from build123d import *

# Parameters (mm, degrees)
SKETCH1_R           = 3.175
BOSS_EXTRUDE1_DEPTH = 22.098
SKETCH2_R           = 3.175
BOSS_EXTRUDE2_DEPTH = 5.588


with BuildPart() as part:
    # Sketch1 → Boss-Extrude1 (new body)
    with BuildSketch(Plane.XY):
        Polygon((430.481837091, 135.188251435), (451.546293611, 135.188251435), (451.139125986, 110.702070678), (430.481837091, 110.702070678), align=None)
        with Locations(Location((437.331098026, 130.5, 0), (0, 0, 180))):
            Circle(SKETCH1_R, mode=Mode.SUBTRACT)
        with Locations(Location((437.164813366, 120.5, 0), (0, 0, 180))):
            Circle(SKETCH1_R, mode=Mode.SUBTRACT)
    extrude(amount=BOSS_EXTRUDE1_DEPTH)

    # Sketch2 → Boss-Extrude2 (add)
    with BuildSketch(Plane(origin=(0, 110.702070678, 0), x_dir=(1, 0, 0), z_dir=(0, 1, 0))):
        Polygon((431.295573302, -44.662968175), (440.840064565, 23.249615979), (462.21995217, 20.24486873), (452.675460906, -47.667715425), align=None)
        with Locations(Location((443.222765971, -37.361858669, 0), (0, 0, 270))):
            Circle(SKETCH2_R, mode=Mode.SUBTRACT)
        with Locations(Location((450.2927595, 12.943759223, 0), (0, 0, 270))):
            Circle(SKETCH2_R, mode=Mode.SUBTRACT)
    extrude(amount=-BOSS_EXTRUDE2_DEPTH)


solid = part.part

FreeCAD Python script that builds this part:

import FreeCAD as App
import Part
import Sketcher

V = App.Vector
Q = App.Units.Quantity

doc = App.newDocument("Part")
body = doc.addObject("PartDesign::Body", "Body")

# Sketch on XY plane
sketch1 = body.newObject("Sketcher::SketchObject", "Sketch")
sketch1.AttachmentSupport = (doc.getObject("XY_Plane"), [""])
sketch1.MapMode = "FlatFace"
sketch1.addGeometry(Part.LineSegment(V(451.5, 135.2, 0), V(430.5, 135.2, 0)), False)
sketch1.addGeometry(Part.LineSegment(V(430.5, 135.2, 0), V(430.5, 110.7, 0)), False)
sketch1.addGeometry(Part.LineSegment(V(430.5, 110.7, 0), V(451.1, 110.7, 0)), False)
sketch1.addGeometry(Part.LineSegment(V(451.1, 110.7, 0), V(451.5, 135.2, 0)), False)
sketch1.addGeometry(Part.Circle(V(437.2, 120.5, 0), V(0, 0, 1), 3.2), False)
sketch1.addGeometry(Part.Circle(V(437.3, 130.5, 0), V(0, 0, 1), 3.2), False)
sketch1.addConstraint(Sketcher.Constraint("Coincident", 0, 2, 1, 1))
sketch1.addConstraint(Sketcher.Constraint("Coincident", 1, 2, 2, 1))
sketch1.addConstraint(Sketcher.Constraint("Coincident", 2, 2, 3, 1))
sketch1.addConstraint(Sketcher.Constraint("Coincident", 3, 2, 0, 1))
sketch1.addConstraint(Sketcher.Constraint("Horizontal", 0))
sketch1.addConstraint(Sketcher.Constraint("Vertical", 1))
sketch1.addConstraint(Sketcher.Constraint("Horizontal", 2))
sketch1.addConstraint(Sketcher.Constraint("Equal", 4, 5))
sketch1.addConstraint(Sketcher.Constraint("Diameter", 4, Q("0.25 in")))
sketch1.addConstraint(Sketcher.Constraint("DistanceX", 4, 3, 3, 2, Q("0.5662 in")))
sketch1.addConstraint(Sketcher.Constraint("DistanceX", 2, 1, 2, 2, Q("20.657289 mm")))
sketch1.addConstraint(Sketcher.Constraint("DistanceY", 1, 2, 1, 1, Q("24.486181 mm")))
sketch1.addConstraint(Sketcher.Constraint("DistanceY", -1, 1, 4, 3, Q("120.5 mm")))
sketch1.addConstraint(Sketcher.Constraint("DistanceX", -1, 1, 5, 3, Q("437.331098 mm")))
sketch1.addConstraint(Sketcher.Constraint("DistanceY", -1, 1, 5, 3, Q("130.5 mm")))
sketch1.addConstraint(Sketcher.Constraint("DistanceX", 0, 2, 0, 1, Q("21.064457 mm")))
sketch1.addConstraint(Sketcher.Constraint("DistanceY", -1, 1, 0, 2, Q("135.188251 mm")))
sketch1.addConstraint(Sketcher.Constraint("DistanceX", 0, 2, 5, 3, Q("6.849261 mm")))
pad1 = body.newObject("PartDesign::Pad", "Pad")
pad1.Profile = sketch1
pad1.Length = Q("0.87 in")

# Sketch on XZ plane
sketch2 = body.newObject("Sketcher::SketchObject", "Sketch001")
sketch2.AttachmentSupport = (doc.getObject("XZ_Plane"), [""])
sketch2.MapMode = "FlatFace"
sketch2.AttachmentOffset = App.Placement(V(0, 0, -110.702071), App.Rotation())
sketch2.addGeometry(Part.LineSegment(V(440.8, -23.2, 0), V(431.3, 44.7, 0)), False)
sketch2.addGeometry(Part.LineSegment(V(431.3, 44.7, 0), V(452.7, 47.7, 0)), False)
sketch2.addGeometry(Part.LineSegment(V(452.7, 47.7, 0), V(462.2, -20.2, 0)), False)
sketch2.addGeometry(Part.LineSegment(V(462.2, -20.2, 0), V(440.8, -23.2, 0)), False)
sketch2.addGeometry(Part.Circle(V(443.2, 37.4, 0), V(0, 0, 1), 3.2), False)
sketch2.addGeometry(Part.Circle(V(450.3, -12.9, 0), V(0, 0, 1), 3.2), False)
sketch2.addConstraint(Sketcher.Constraint("Coincident", 0, 2, 1, 1))
sketch2.addConstraint(Sketcher.Constraint("Coincident", 1, 2, 2, 1))
sketch2.addConstraint(Sketcher.Constraint("Coincident", 2, 2, 3, 1))
sketch2.addConstraint(Sketcher.Constraint("Coincident", 3, 2, 0, 1))
sketch2.addConstraint(Sketcher.Constraint("Equal", 4, 5))
sketch2.addConstraint(Sketcher.Constraint("Perpendicular", 0, 1))
sketch2.addConstraint(Sketcher.Constraint("Perpendicular", 1, 2))
sketch2.addConstraint(Sketcher.Constraint("Perpendicular", 2, 3))
sketch2.addConstraint(Sketcher.Constraint("Diameter", 4, Q("0.25 in")))
sketch2.addConstraint(Sketcher.Constraint("Angle", 0, Q("98 deg")))
sketch2.addConstraint(Sketcher.Constraint("Distance", 0, Q("2.7 in")))
sketch2.addConstraint(Sketcher.Constraint("Distance", 1, Q("0.85 in")))
sketch2.addConstraint(Sketcher.Constraint("DistanceX", 5, 3, 1, 2, Q("2.382701 mm")))
sketch2.addConstraint(Sketcher.Constraint("DistanceX", 3, 2, 4, 3, Q("2.382701 mm")))
sketch2.addConstraint(Sketcher.Constraint("DistanceY", -1, 1, 4, 3, Q("37.361859 mm")))
sketch2.addConstraint(Sketcher.Constraint("DistanceX", -1, 1, 5, 3, Q("450.292759 mm")))
sketch2.addConstraint(Sketcher.Constraint("DistanceY", 5, 3, -1, 1, Q("12.943759 mm")))
sketch2.addConstraint(Sketcher.Constraint("DistanceY", -1, 1, 0, 2, Q("44.662968 mm")))
pad2 = body.newObject("PartDesign::Pad", "Pad001")
pad2.Profile = sketch2
pad2.Length = Q("0.22 in")

doc.recompute()
